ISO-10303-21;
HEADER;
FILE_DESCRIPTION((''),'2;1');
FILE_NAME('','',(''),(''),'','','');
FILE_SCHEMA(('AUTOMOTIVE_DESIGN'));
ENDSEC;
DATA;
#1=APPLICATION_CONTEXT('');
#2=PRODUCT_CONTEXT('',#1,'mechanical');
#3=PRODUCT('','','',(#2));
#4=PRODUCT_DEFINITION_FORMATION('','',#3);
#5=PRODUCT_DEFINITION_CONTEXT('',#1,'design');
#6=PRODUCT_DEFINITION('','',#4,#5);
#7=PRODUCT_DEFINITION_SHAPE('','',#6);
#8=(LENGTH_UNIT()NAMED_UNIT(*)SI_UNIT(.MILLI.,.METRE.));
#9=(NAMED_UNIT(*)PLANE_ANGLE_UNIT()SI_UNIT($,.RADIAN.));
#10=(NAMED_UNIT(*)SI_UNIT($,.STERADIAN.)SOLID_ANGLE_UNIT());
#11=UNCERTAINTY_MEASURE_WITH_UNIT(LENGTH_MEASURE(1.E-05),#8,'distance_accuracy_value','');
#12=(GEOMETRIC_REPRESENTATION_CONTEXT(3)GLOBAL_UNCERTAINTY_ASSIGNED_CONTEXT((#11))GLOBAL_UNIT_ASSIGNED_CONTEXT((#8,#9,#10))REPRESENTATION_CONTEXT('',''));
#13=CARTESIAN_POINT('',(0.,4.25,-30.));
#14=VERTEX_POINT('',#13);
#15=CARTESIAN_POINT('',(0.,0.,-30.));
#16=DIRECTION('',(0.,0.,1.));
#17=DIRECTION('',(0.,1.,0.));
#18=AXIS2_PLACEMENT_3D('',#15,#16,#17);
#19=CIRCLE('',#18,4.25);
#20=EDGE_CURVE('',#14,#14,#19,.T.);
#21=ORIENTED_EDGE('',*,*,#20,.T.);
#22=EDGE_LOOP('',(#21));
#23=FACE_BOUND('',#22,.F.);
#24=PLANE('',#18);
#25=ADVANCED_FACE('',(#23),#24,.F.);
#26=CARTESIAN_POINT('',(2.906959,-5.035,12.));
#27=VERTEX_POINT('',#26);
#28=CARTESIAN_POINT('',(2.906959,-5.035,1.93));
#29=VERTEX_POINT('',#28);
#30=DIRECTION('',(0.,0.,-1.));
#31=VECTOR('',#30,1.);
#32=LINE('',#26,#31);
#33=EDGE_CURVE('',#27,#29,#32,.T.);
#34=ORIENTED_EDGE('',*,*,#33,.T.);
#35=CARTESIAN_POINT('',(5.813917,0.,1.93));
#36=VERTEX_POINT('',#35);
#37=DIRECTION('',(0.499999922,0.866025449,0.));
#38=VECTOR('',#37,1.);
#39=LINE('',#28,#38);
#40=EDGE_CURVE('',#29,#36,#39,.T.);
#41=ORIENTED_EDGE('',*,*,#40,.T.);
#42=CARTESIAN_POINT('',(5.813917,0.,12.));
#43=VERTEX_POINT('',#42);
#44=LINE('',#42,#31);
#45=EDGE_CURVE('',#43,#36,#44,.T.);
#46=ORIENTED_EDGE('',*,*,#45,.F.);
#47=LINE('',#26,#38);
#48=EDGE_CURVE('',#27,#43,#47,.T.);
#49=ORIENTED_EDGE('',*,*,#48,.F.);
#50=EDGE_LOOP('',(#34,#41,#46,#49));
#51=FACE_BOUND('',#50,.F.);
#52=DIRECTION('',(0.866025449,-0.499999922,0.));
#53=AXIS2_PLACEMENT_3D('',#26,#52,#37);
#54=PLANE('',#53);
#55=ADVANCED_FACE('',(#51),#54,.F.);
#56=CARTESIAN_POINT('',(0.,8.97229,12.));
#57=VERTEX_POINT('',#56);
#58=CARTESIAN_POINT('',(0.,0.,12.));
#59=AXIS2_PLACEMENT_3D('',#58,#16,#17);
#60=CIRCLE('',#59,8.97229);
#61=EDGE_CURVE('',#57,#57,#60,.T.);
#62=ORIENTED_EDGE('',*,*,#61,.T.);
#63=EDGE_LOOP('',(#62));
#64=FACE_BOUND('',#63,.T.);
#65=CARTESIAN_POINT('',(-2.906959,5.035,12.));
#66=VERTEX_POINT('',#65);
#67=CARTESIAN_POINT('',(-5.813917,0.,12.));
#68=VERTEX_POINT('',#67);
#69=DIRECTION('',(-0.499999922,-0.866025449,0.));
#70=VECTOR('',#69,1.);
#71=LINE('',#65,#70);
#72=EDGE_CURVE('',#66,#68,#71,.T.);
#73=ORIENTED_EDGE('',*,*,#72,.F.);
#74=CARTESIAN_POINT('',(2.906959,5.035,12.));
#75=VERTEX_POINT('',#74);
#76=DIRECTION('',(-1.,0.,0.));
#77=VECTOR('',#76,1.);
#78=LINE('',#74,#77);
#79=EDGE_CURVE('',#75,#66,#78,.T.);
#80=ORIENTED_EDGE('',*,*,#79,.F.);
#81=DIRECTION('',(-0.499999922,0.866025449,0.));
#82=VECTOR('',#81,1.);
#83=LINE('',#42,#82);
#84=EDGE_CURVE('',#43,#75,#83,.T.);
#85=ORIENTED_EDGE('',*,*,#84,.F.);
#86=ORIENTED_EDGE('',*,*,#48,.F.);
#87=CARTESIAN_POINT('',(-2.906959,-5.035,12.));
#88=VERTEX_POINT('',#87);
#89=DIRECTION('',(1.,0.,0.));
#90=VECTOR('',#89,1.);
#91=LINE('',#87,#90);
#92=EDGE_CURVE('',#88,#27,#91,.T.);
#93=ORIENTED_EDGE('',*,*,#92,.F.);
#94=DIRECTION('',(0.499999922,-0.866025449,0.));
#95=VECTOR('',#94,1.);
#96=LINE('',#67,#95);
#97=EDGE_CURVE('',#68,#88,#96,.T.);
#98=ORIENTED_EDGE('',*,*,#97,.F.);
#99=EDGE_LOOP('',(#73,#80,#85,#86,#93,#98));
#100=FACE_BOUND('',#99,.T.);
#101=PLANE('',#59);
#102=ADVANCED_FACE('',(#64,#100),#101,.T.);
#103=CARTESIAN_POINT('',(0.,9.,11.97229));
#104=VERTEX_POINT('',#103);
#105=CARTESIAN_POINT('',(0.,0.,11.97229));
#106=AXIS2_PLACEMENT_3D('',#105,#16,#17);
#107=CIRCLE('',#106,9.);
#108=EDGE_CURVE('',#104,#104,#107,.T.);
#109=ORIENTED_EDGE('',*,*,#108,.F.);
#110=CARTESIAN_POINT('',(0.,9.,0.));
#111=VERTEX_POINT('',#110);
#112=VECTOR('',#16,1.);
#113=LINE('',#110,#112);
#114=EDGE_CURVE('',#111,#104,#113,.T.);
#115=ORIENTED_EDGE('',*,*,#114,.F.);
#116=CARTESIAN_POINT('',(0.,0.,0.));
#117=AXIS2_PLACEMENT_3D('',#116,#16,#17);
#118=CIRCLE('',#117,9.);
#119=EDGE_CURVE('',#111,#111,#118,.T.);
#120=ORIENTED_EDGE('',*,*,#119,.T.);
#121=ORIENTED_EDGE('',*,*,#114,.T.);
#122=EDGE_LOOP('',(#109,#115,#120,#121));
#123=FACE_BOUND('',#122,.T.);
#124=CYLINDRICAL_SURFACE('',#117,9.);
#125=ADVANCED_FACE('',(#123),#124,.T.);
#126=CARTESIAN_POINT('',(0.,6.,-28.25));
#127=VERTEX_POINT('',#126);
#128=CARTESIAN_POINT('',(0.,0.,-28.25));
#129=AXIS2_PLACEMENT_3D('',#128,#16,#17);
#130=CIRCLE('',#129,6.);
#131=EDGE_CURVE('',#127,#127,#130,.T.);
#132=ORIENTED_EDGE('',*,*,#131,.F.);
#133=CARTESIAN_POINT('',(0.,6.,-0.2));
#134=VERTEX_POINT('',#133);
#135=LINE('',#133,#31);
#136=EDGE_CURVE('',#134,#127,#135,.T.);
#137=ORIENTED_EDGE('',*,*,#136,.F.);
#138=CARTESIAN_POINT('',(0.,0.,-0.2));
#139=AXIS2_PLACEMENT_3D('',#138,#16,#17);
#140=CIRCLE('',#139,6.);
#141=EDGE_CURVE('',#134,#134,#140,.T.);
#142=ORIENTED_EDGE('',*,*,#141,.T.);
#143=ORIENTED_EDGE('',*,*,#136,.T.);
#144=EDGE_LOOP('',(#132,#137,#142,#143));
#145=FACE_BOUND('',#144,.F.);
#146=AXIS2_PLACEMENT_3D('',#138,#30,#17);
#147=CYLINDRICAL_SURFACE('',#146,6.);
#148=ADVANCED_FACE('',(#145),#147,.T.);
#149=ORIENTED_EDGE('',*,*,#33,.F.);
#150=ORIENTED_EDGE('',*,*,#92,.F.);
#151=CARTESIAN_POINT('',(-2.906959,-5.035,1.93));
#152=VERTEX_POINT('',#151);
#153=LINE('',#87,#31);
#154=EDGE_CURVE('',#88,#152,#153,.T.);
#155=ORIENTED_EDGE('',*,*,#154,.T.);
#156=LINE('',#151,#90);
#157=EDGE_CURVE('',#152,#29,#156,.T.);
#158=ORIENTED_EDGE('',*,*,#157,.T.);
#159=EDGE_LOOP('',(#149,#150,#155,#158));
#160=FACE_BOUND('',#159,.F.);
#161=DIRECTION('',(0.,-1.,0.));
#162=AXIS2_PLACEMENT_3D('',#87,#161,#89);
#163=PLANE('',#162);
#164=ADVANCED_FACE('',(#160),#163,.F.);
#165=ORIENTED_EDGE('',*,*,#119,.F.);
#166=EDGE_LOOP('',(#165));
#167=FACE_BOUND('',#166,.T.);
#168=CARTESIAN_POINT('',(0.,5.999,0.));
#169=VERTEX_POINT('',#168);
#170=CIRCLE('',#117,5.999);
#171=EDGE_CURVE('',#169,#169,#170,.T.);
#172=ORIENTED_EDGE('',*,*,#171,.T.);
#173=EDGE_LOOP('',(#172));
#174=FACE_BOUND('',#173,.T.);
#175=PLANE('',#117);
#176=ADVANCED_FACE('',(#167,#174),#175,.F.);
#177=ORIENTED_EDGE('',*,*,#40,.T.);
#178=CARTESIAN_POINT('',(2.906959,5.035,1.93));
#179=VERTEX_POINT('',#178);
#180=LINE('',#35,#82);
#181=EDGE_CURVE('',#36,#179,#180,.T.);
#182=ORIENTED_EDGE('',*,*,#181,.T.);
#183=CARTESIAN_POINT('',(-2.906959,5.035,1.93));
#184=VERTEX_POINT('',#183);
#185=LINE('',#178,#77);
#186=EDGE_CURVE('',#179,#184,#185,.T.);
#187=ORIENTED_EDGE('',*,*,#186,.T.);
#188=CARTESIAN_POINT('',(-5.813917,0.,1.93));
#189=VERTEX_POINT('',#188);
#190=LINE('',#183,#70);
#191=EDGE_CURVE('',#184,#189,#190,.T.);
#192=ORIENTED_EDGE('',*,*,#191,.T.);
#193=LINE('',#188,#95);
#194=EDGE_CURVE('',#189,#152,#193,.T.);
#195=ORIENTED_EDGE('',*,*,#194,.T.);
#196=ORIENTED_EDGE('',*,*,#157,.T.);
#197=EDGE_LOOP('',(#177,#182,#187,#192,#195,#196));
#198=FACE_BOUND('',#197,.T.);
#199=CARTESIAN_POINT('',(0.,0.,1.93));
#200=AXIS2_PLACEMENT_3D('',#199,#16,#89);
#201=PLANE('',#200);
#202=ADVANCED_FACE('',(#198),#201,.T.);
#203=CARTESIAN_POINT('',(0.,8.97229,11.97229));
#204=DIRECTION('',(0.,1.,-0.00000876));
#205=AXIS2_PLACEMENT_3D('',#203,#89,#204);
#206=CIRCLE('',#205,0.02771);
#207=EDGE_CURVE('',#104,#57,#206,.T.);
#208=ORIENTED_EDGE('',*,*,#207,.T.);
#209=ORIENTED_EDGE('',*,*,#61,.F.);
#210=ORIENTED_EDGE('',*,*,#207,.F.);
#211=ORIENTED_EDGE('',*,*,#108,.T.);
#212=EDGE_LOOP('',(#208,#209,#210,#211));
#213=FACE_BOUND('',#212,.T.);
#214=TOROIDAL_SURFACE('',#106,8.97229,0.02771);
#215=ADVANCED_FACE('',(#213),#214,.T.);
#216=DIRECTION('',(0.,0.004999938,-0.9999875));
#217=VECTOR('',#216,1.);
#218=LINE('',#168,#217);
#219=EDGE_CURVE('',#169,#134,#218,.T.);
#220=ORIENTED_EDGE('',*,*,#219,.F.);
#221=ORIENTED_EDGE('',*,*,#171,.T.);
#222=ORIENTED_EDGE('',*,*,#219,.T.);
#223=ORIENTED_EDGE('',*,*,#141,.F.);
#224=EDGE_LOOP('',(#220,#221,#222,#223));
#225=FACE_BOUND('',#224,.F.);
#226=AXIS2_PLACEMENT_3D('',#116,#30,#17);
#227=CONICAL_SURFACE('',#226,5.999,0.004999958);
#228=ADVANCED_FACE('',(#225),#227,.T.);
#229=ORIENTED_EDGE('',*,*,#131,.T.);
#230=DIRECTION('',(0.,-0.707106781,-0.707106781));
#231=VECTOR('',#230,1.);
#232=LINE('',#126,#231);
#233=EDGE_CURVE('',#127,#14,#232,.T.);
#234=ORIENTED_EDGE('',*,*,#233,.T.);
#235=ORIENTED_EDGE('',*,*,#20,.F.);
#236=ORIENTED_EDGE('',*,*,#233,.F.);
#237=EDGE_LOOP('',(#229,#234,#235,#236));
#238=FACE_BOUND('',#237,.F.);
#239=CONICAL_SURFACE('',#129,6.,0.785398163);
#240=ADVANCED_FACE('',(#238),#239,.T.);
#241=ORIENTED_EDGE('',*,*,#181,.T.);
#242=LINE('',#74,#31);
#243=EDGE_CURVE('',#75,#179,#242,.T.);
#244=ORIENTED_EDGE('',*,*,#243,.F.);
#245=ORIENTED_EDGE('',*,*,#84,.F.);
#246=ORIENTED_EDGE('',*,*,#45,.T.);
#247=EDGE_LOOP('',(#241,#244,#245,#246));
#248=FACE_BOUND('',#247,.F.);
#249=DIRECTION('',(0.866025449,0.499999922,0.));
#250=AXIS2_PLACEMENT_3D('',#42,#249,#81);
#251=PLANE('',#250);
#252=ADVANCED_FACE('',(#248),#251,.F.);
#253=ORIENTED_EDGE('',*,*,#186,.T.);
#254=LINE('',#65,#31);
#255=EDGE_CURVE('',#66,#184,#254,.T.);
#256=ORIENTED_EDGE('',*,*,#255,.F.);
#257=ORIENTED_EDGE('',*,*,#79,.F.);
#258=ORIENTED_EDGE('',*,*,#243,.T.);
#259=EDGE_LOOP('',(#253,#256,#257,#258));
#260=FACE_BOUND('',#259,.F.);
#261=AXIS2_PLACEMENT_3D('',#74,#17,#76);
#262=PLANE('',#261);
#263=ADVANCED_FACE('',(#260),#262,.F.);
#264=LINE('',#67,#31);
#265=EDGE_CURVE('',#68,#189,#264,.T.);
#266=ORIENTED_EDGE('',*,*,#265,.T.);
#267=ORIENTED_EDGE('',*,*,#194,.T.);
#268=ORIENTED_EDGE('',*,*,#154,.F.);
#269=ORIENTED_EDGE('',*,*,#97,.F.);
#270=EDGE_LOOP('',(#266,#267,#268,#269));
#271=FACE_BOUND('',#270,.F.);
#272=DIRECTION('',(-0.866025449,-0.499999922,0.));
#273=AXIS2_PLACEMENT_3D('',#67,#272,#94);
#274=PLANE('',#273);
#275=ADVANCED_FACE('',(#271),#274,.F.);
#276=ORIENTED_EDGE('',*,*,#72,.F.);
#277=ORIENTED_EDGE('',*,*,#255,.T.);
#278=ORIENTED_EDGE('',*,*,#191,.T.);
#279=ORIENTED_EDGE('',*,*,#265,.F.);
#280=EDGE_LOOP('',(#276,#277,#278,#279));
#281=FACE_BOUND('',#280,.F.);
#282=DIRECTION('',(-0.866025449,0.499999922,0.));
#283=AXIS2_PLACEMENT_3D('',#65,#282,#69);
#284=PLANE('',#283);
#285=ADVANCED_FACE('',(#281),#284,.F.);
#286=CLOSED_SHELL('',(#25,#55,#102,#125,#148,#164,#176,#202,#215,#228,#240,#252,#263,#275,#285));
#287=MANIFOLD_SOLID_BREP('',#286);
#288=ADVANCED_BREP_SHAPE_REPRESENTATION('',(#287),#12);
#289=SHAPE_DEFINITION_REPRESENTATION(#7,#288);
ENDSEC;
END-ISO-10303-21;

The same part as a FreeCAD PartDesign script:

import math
import FreeCAD as App
import Part
import Sketcher
from FreeCAD import Vector
Q = App.Units.Quantity


def add_polygon(sketch, points):
    """Adds a closed chain of lines whose ends are joined by coincident constraints."""
    first, n = sketch.GeometryCount, len(points)
    for a, b in zip(points, points[1:] + points[:1]):
        sketch.addGeometry(Part.LineSegment(App.Vector(*a, 0), App.Vector(*b, 0)), False)
    for i in range(n):
        sketch.addConstraint(Sketcher.Constraint("Coincident", first + i, 2, first + (i + 1) % n, 1))

doc = App.newDocument("Part")
params = doc.addObject("Spreadsheet::Sheet", "Params")
for row, (alias, value) in enumerate([
    ("sketch1_height", "42 mm"),
    ("sketch1_width", "4.25 mm"),
    ("sketch1_height2", "28.05 mm"),
    ("revolution_angle", "360 deg"),
    ("pocket1_length", "10.07 mm"),
], start=1):
    params.set(f"A{row}", alias)
    params.set(f"B{row}", "=" + value)
    params.setAlias(f"B{row}", alias)

body = doc.addObject("PartDesign::Body", "Body")

sketch1 = body.newObject("Sketcher::SketchObject", "Sketch")
sketch1.AttachmentSupport = (doc.getObject("YZ_Plane"), [""])
sketch1.MapMode = "FlatFace"
sketch1.addGeometry([
    Part.LineSegment(Vector(5.999, 0, 0), Vector(9, 0, 0)),
    Part.LineSegment(Vector(9, 0, 0), Vector(9, 11.972, 0)),
    Part.ArcOfCircle(Part.Circle(Vector(8.972, 11.972, 0), Vector(0, 0, 1), 0.028), math.radians(0), math.radians(90)),
    Part.LineSegment(Vector(8.972, 12, 0), Vector(0, 12, 0)),
    Part.LineSegment(Vector(0, 12, 0), Vector(0, -30, 0)),
    Part.LineSegment(Vector(0, -30, 0), Vector(4.25, -30, 0)),
    Part.LineSegment(Vector(4.25, -30, 0), Vector(6, -28.25, 0)),
    Part.LineSegment(Vector(6, -28.25, 0), Vector(6, -0.2, 0)),
    Part.LineSegment(Vector(6, -0.2, 0), Vector(5.999, 0, 0)),
], False)
sketch1.addConstraint([
    Sketcher.Constraint("Coincident", 0, 2, 1, 1),
    Sketcher.Constraint("Coincident", 1, 2, 2, 1),
    Sketcher.Constraint("Coincident", 2, 2, 3, 1),
    Sketcher.Constraint("Coincident", 3, 2, 4, 1),
    Sketcher.Constraint("Coincident", 4, 2, 5, 1),
    Sketcher.Constraint("Coincident", 5, 2, 6, 1),
    Sketcher.Constraint("Coincident", 6, 2, 7, 1),
    Sketcher.Constraint("Coincident", 7, 2, 8, 1),
    Sketcher.Constraint("Coincident", 8, 2, 0, 1),
    Sketcher.Constraint("Horizontal", 0),
    Sketcher.Constraint("Vertical", 1),
    Sketcher.Constraint("Horizontal", 3),
    Sketcher.Constraint("Vertical", 4),
    Sketcher.Constraint("Horizontal", 5),
    Sketcher.Constraint("Vertical", 7),
    Sketcher.Constraint("PointOnObject", 0, 2, -1),
    Sketcher.Constraint("PointOnObject", 3, 2, -2),
    Sketcher.Constraint("Horizontal", 2, 3, 1, 2),
    Sketcher.Constraint("DistanceY", 4, 2, 4, 1, 42.0),
    Sketcher.Constraint("Angle", 6, Q("45 deg")),
    Sketcher.Constraint("DistanceX", -1, 1, 0, 2, 9.0),
    Sketcher.Constraint("DistanceY", -1, 1, 2, 2, 12.0),
    Sketcher.Constraint("DistanceX", -1, 1, 6, 2, 6.0),
    Sketcher.Constraint("DistanceX", 5, 1, 5, 2, 4.25),
    Sketcher.Constraint("DistanceY", 7, 1, 7, 2, 28.05),
    Sketcher.Constraint("DistanceX", 0, 1, 0, 2, 3.001),
    Sketcher.Constraint("Radius", 2, 0.02771),
    Sketcher.Constraint("DistanceX", 3, 2, 3, 1, 8.97229),
])
sketch1.setExpression("Constraints[18]", "Params.sketch1_height")
sketch1.setExpression("Constraints[23]", "Params.sketch1_width")
sketch1.setExpression("Constraints[24]", "Params.sketch1_height2")
revolution = body.newObject("PartDesign::Revolution", "Revolution")
revolution.Profile = sketch1
revolution.ReferenceAxis = (sketch1, ["V_Axis"])
revolution.setExpression("Angle", "Params.revolution_angle")

sketch2 = body.newObject("Sketcher::SketchObject", "Sketch001")
sketch2.AttachmentSupport = (doc.getObject("XY_Plane"), [""])
sketch2.MapMode = "FlatFace"
sketch2.AttachmentOffset = App.Placement(Vector(0, 0, 12), App.Rotation())
add_polygon(sketch2, [(6, 0), (3, 5), (-3, 5), (-6, 0), (-3, -5), (3, -5)])
sketch2.addConstraint([
    Sketcher.Constraint("Horizontal", 1),
    Sketcher.Constraint("Horizontal", 4),
    Sketcher.Constraint("Symmetric", 0, 2, 3, 2, -1, 1),
    Sketcher.Constraint("Symmetric", 2, 2, 5, 2, -1, 1),
    Sketcher.Constraint("PointOnObject", 2, 2, -1),
    Sketcher.Constraint("Parallel", 2, 5),
    Sketcher.Constraint("Vertical", 1, 2, 3, 2),
    Sketcher.Constraint("Angle", 0, Q("119.999995 deg")),
    Sketcher.Constraint("DistanceY", 3, 2, 1, 2, 10.07),
    Sketcher.Constraint("DistanceX", 1, 2, 1, 1, 5.813918),
])
pocket1 = body.newObject("PartDesign::Pocket", "Pocket")
pocket1.Profile = sketch2
pocket1.setExpression("Length", "Params.pocket1_length")

doc.recompute()
